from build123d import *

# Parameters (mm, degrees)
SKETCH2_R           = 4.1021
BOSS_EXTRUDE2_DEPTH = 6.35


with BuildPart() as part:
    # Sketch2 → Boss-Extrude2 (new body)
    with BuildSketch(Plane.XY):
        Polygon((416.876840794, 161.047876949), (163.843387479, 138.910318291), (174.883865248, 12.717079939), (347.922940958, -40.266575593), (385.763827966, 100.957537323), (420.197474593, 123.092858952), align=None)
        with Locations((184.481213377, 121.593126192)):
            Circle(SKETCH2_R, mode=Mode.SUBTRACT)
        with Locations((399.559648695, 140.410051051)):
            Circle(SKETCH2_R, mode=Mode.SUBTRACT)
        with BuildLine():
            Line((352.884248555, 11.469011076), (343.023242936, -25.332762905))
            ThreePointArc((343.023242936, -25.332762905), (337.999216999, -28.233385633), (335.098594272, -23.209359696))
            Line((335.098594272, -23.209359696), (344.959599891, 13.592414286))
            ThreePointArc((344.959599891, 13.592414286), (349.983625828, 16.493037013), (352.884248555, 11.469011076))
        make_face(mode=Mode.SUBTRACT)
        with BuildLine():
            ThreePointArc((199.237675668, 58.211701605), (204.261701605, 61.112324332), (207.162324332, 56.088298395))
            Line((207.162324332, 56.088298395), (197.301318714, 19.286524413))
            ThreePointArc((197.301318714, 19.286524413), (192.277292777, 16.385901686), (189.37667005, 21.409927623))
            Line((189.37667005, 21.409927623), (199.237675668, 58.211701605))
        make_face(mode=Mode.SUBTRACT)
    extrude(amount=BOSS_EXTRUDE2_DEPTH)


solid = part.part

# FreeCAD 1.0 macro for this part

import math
import FreeCAD as App
import Part
import Sketcher
Q = App.Units.Quantity


def add_polygon(sketch, points):
    """Adds a closed chain of lines whose ends are joined by coincident constraints."""
    first, n = sketch.GeometryCount, len(points)
    for a, b in zip(points, points[1:] + points[:1]):
        sketch.addGeometry(Part.LineSegment(App.Vector(*a, 0), App.Vector(*b, 0)), False)
    for i in range(n):
        sketch.addConstraint(Sketcher.Constraint("Coincident", first + i, 2, first + (i + 1) % n, 1))

doc = App.newDocument("Part")
body = doc.addObject("PartDesign::Body", "Body")

# Sketch on XY plane
sketch1 = doc.addObject("Sketcher::SketchObject", "Sketch")
body.addObject(sketch1)
sketch1.AttachmentSupport = (doc.XY_Plane, [""])
sketch1.MapMode = "FlatFace"
add_polygon(sketch1, [(416.9, 161), (163.8, 138.9), (174.9, 12.7), (347.9, -40.3), (385.8, 101), (420.2, 123.1)])  # lines 0-5
sketch1.addGeometry(Part.LineSegment(App.Vector(189.4, 21.4, 0), App.Vector(199.2, 58.2, 0)), False)  # 6
sketch1.addGeometry(Part.ArcOfCircle(Part.Circle(App.Vector(203.2, 57.1, 0), App.Vector(0, 0, 1), 4.1), math.radians(-15), math.radians(165)), False)  # 7
sketch1.addGeometry(Part.LineSegment(App.Vector(207.2, 56.1, 0), App.Vector(197.3, 19.3, 0)), False)  # 8
sketch1.addGeometry(Part.ArcOfCircle(Part.Circle(App.Vector(193.3, 20.3, 0), App.Vector(0, 0, 1), 4.1), math.radians(165), math.radians(345)), False)  # 9
sketch1.addGeometry(Part.ArcOfCircle(Part.Circle(App.Vector(348.9, 12.5, 0), App.Vector(0, 0, 1), 4.1), math.radians(-15), math.radians(165)), False)  # 10
sketch1.addGeometry(Part.LineSegment(App.Vector(352.9, 11.5, 0), App.Vector(343, -25.3, 0)), False)  # 11
sketch1.addGeometry(Part.ArcOfCircle(Part.Circle(App.Vector(339.1, -24.3, 0), App.Vector(0, 0, 1), 4.1), math.radians(165), math.radians(345)), False)  # 12
sketch1.addGeometry(Part.LineSegment(App.Vector(335.1, -23.2, 0), App.Vector(345, 13.6, 0)), False)  # 13
sketch1.addGeometry(Part.Circle(App.Vector(184.5, 121.6, 0), App.Vector(0, 0, 1), 4.1), False)  # 14
sketch1.addGeometry(Part.Circle(App.Vector(399.6, 140.4, 0), App.Vector(0, 0, 1), 4.1), False)  # 15
sketch1.addConstraint([
    Sketcher.Constraint("Tangent", 6, 2, 7, 2),
    Sketcher.Constraint("Tangent", 7, 1, 8, 1),
    Sketcher.Constraint("Tangent", 8, 2, 9, 2),
    Sketcher.Constraint("Tangent", 9, 1, 6, 1),
    Sketcher.Constraint("Tangent", 10, 1, 11, 1),
    Sketcher.Constraint("Tangent", 11, 2, 12, 2),
    Sketcher.Constraint("Tangent", 12, 1, 13, 1),
    Sketcher.Constraint("Tangent", 13, 2, 10, 2),
    Sketcher.Constraint("Equal", 7, 9),
    Sketcher.Constraint("Equal", 9, 10),
    Sketcher.Constraint("Equal", 10, 12),
    Sketcher.Constraint("Equal", 12, 14),
    Sketcher.Constraint("Equal", 14, 15),
    Sketcher.Constraint("Perpendicular", 0, 1),
    Sketcher.Constraint("Parallel", 1, 5),
    Sketcher.Constraint("Parallel", 3, 6),
    Sketcher.Constraint("Parallel", 8, 11),
    Sketcher.Constraint("Equal", 5, 6),
    Sketcher.Constraint("Equal", 8, 11),
    Sketcher.Constraint("Distance", 0, Q("10 in")),
    Sketcher.Constraint("Diameter", 14, Q("0.323 in")),
    Sketcher.Constraint("DistanceX", -1, 1, 7, 3, Q("8 in")),
    Sketcher.Constraint("Angle", 0, Q("-175 deg")),
    Sketcher.Constraint("Angle", 3, Q("75 deg")),
    Sketcher.Constraint("Distance", 5, Q("1.5 in")),
    Sketcher.Constraint("DistanceY", -1, 1, 7, 3, Q("2.25 in")),
    Sketcher.Constraint("DistanceX", 11, 2, 3, 2, Q("1.6827002 in")),
    Sketcher.Constraint("DistanceX", -1, 1, 13, 2, Q("344.9596 mm")),
    Sketcher.Constraint("DistanceY", 9, 3, 14, 3, Q("101.2449 mm")),
    Sketcher.Constraint("DistanceY", 2, 2, 9, 3, Q("60.614802 mm")),
    Sketcher.Constraint("DistanceY", 12, 3, 3, 2, Q("125.228599 mm")),
    Sketcher.Constraint("DistanceX", 11, 2, 2, 2, Q("4.899698 mm")),
    Sketcher.Constraint("Distance", 2, Q("180.969029 mm")),
    Sketcher.Constraint("DistanceX", -1, 1, 15, 3, Q("399.559649 mm")),
    Sketcher.Constraint("DistanceY", -1, 1, 15, 3, Q("140.410051 mm")),
    Sketcher.Constraint("DistanceY", -1, 1, 0, 2, Q("138.910318 mm")),
    Sketcher.Constraint("DistanceY", -1, 1, 1, 2, Q("12.71708 mm")),
    Sketcher.Constraint("DistanceX", 14, 3, 9, 3, Q("8.857781 mm")),
])
pad1 = doc.addObject("PartDesign::Pad", "Pad")
body.addObject(pad1)
pad1.Profile = sketch1
pad1.Length = Q("0.25 in")

doc.recompute()
